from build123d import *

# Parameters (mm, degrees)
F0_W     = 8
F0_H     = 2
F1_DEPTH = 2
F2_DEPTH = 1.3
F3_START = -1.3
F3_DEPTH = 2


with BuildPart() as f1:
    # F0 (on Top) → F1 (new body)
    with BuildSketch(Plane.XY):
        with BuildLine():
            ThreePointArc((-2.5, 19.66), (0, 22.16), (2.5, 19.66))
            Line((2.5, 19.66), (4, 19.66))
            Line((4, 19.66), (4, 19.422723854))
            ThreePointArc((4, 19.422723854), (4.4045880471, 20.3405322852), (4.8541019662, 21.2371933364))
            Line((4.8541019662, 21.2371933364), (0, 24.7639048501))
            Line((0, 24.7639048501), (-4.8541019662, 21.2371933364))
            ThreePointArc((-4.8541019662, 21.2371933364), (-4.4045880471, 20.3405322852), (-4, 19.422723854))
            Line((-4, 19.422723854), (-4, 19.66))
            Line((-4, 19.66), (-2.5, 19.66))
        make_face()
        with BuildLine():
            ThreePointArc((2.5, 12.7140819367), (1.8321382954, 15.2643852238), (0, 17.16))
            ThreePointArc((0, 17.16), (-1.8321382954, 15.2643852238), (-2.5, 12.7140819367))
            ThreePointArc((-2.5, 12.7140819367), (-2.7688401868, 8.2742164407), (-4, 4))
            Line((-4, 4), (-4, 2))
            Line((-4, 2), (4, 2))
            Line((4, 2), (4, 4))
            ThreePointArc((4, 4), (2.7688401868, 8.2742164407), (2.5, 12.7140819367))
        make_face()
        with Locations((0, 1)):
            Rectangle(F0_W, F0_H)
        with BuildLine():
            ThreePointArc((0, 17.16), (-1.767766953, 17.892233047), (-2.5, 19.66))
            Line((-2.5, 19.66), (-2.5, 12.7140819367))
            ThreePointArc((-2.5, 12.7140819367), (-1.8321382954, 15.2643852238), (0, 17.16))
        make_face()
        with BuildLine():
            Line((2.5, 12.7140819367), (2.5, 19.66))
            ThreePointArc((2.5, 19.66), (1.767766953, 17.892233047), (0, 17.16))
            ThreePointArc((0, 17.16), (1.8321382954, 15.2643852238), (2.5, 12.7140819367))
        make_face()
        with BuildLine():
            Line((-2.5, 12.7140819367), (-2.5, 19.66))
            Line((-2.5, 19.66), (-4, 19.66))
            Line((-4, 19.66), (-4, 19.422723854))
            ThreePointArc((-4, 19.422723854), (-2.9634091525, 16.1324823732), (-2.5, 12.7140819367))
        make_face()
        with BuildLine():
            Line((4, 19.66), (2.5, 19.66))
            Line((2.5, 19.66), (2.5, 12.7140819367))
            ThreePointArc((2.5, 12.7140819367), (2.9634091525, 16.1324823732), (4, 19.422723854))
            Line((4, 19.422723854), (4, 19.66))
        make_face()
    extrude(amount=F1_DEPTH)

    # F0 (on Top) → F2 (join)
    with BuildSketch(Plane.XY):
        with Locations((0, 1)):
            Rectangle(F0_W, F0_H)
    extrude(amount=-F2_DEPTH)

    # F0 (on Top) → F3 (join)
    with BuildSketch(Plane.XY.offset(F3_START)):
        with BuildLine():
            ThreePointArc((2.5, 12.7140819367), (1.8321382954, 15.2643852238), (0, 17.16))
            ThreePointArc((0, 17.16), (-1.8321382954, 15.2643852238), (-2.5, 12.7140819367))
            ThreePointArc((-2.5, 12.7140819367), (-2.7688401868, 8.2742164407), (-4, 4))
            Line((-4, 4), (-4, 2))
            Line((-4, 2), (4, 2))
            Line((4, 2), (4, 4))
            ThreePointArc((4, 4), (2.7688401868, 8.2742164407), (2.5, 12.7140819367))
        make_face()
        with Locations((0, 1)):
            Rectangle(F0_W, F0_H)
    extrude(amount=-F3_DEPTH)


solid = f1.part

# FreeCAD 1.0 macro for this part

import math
import FreeCAD as App
import Part
import Sketcher

V = App.Vector
Q = App.Units.Quantity

doc = App.newDocument("Part")
body = doc.addObject("PartDesign::Body", "Body")

# Sketch on XY plane
sketch1 = body.newObject("Sketcher::SketchObject", "Sketch")
sketch1.AttachmentSupport = (doc.getObject("XY_Plane"), [""])
sketch1.MapMode = "FlatFace"
sketch1.addGeometry(Part.ArcOfCircle(Part.Circle(V(22.736552, 11.711362, 0), V(0, 0, 1), 20.261379), math.radians(177.163317), math.radians(202.370489)), False)
sketch1.addGeometry(Part.ArcOfCircle(Part.Circle(V(22.736552, 11.711362, 0), V(0, 0, 1), 20.261379), math.radians(157.629511), math.radians(177.163317)), False)
sketch1.addGeometry(Part.ArcOfCircle(Part.Circle(V(22.736552, 11.711362, 0), V(0, 0, 1), 20.261379), math.radians(151.956145), math.radians(157.629511)), False)
sketch1.addGeometry(Part.LineSegment(V(4.854102, 21.237193, 0), V(0, 24.763905, 0)), False)
sketch1.addGeometry(Part.LineSegment(V(0, 24.763905, 0), V(-4.854102, 21.237193, 0)), False)
sketch1.addGeometry(Part.ArcOfCircle(Part.Circle(V(-22.736552, 11.711362, 0), V(0, 0, 1), 20.261379), math.radians(22.370489), math.radians(28.043855)), False)
sketch1.addGeometry(Part.ArcOfCircle(Part.Circle(V(-22.736552, 11.711362, 0), V(0, 0, 1), 20.261379), math.radians(2.836683), math.radians(22.370489)), False)
sketch1.addGeometry(Part.ArcOfCircle(Part.Circle(V(-22.736552, 11.711362, 0), V(0, 0, 1), 20.261379), math.radians(-22.370489), math.radians(2.836683)), False)
sketch1.addGeometry(Part.LineSegment(V(-4, 4, 0), V(-4, 0, 0)), False)
sketch1.addGeometry(Part.LineSegment(V(-4, 0, 0), V(4, 0, 0)), False)
sketch1.addGeometry(Part.LineSegment(V(4, 0, 0), V(4, 4, 0)), False)
sketch1.addGeometry(Part.ArcOfCircle(Part.Circle(V(0, 19.66, 0), V(0, 0, 1), 2.5), math.radians(0), math.radians(180)), False)
sketch1.addGeometry(Part.ArcOfCircle(Part.Circle(V(0, 19.66, 0), V(0, 0, 1), 2.5), math.radians(-90), math.radians(0)), False)
sketch1.addGeometry(Part.ArcOfCircle(Part.Circle(V(0, 19.66, 0), V(0, 0, 1), 2.5), math.radians(180), math.radians(270)), False)
sketch1.addConstraint(Sketcher.Constraint("Tangent", 0, 1, 1, 2))
sketch1.addConstraint(Sketcher.Constraint("Tangent", 1, 1, 2, 2))
sketch1.addConstraint(Sketcher.Constraint("Coincident", 2, 1, 3, 1))
sketch1.addConstraint(Sketcher.Constraint("Coincident", 3, 2, 4, 1))
sketch1.addConstraint(Sketcher.Constraint("Coincident", 4, 2, 5, 2))
sketch1.addConstraint(Sketcher.Constraint("Tangent", 5, 1, 6, 2))
sketch1.addConstraint(Sketcher.Constraint("Tangent", 6, 1, 7, 2))
sketch1.addConstraint(Sketcher.Constraint("Coincident", 7, 1, 8, 1))
sketch1.addConstraint(Sketcher.Constraint("Coincident", 8, 2, 9, 1))
sketch1.addConstraint(Sketcher.Constraint("Coincident", 9, 2, 10, 1))
sketch1.addConstraint(Sketcher.Constraint("Coincident", 10, 2, 0, 2))
sketch1.addConstraint(Sketcher.Constraint("Tangent", 11, 1, 12, 2))
sketch1.addConstraint(Sketcher.Constraint("Tangent", 12, 1, 13, 2))
sketch1.addConstraint(Sketcher.Constraint("Tangent", 13, 1, 11, 2))
sketch1.addConstraint(Sketcher.Constraint("Vertical", 8))
sketch1.addConstraint(Sketcher.Constraint("Horizontal", 9))
sketch1.addConstraint(Sketcher.Constraint("Vertical", 10))
sketch1.addConstraint(Sketcher.Constraint("Coincident", 2, 3, 0, 3))
sketch1.addConstraint(Sketcher.Constraint("Coincident", 7, 3, 5, 3))
sketch1.addConstraint(Sketcher.Constraint("Equal", 2, 5))
sketch1.addConstraint(Sketcher.Constraint("Symmetric", 8, 2, 9, 2, -1, 1))
sketch1.addConstraint(Sketcher.Constraint("Symmetric", 0, 3, 5, 3, -2))
sketch1.addConstraint(Sketcher.Constraint("Symmetric", 11, 1, 13, 1, -2))
sketch1.addConstraint(Sketcher.Constraint("PointOnObject", 3, 2, -2))
sketch1.addConstraint(Sketcher.Constraint("PointOnObject", 12, 1, -2))
sketch1.addConstraint(Sketcher.Constraint("Horizontal", 2, 1, 4, 2))
sketch1.addConstraint(Sketcher.Constraint("Horizontal", 1, 1, 5, 1))
sketch1.addConstraint(Sketcher.Constraint("Horizontal", 0, 1, 6, 1))
sketch1.addConstraint(Sketcher.Constraint("Horizontal", 13, 3, 11, 1))
sketch1.addConstraint(Sketcher.Constraint("Vertical", 5, 1, 7, 1))
sketch1.addConstraint(Sketcher.Constraint("Vertical", 0, 1, 11, 1))
sketch1.addConstraint(Sketcher.Constraint("Radius", 11, 2.5))
sketch1.addConstraint(Sketcher.Constraint("DistanceX", 9, 1, 9, 2, 8.0))
sketch1.addConstraint(Sketcher.Constraint("DistanceY", 8, 2, 8, 1, 4.0))
sketch1.addConstraint(Sketcher.Constraint("Angle", 3, Q("144 deg")))
sketch1.addConstraint(Sketcher.Constraint("Distance", 3, 6.0))
sketch1.addConstraint(Sketcher.Constraint("DistanceY", -1, 1, 11, 3, 19.66))
sketch1.addConstraint(Sketcher.Constraint("Radius", 0, 20.261379))
sketch1.addConstraint(Sketcher.Constraint("DistanceX", -1, 1, 0, 3, 22.736552))
pad1 = body.newObject("PartDesign::Pad", "Pad")
pad1.Profile = sketch1
pad1.Length = 2

# Sketch on XY plane
sketch2 = body.newObject("Sketcher::SketchObject", "Sketch001")
sketch2.AttachmentSupport = (doc.getObject("XY_Plane"), [""])
sketch2.MapMode = "FlatFace"
sketch2.addGeometry(Part.LineSegment(V(-4, 2, 0), V(-4, 0, 0)), False)
sketch2.addGeometry(Part.LineSegment(V(-4, 0, 0), V(4, 0, 0)), False)
sketch2.addGeometry(Part.LineSegment(V(4, 0, 0), V(4, 2, 0)), False)
sketch2.addGeometry(Part.LineSegment(V(4, 2, 0), V(-4, 2, 0)), False)
sketch2.addConstraint(Sketcher.Constraint("Coincident", 0, 2, 1, 1))
sketch2.addConstraint(Sketcher.Constraint("Coincident", 1, 2, 2, 1))
sketch2.addConstraint(Sketcher.Constraint("Coincident", 2, 2, 3, 1))
sketch2.addConstraint(Sketcher.Constraint("Coincident", 3, 2, 0, 1))
sketch2.addConstraint(Sketcher.Constraint("Vertical", 0))
sketch2.addConstraint(Sketcher.Constraint("Horizontal", 1))
sketch2.addConstraint(Sketcher.Constraint("Vertical", 2))
sketch2.addConstraint(Sketcher.Constraint("Horizontal", 3))
sketch2.addConstraint(Sketcher.Constraint("Symmetric", 0, 2, 1, 2, -1, 1))
sketch2.addConstraint(Sketcher.Constraint("DistanceX", 1, 1, 1, 2, 8.0))
sketch2.addConstraint(Sketcher.Constraint("DistanceY", 0, 2, 0, 1, 2.0))
pad2 = body.newObject("PartDesign::Pad", "Pad001")
pad2.Profile = sketch2
pad2.Length = 1.3
pad2.Reversed = True

# Sketch on XY plane
sketch3 = body.newObject("Sketcher::SketchObject", "Sketch002")
sketch3.AttachmentSupport = (doc.getObject("XY_Plane"), [""])
sketch3.MapMode = "FlatFace"
sketch3.AttachmentOffset = App.Placement(V(0, 0, -1.3), App.Rotation())
sketch3.addGeometry(Part.ArcOfCircle(Part.Circle(V(-2.703237, 12.714082, 0), V(0, 0, 1), 5.203237), math.radians(0), math.radians(58.699276)), False)
sketch3.addGeometry(Part.ArcOfCircle(Part.Circle(V(2.703237, 12.714082, 0), V(0, 0, 1), 5.203237), math.radians(121.300724), math.radians(180)), False)
sketch3.addGeometry(Part.ArcOfCircle(Part.Circle(V(-22.736552, 11.711362, 0), V(0, 0, 1), 20.261379), math.radians(-22.370489), math.radians(2.836683)), False)
sketch3.addGeometry(Part.LineSegment(V(-4, 4, 0), V(-4, 0, 0)), False)
sketch3.addGeometry(Part.LineSegment(V(-4, 0, 0), V(4, 0, 0)), False)
sketch3.addGeometry(Part.LineSegment(V(4, 0, 0), V(4, 4, 0)), False)
sketch3.addGeometry(Part.ArcOfCircle(Part.Circle(V(22.736552, 11.711362, 0), V(0, 0, 1), 20.261379), math.radians(177.163317), math.radians(202.370489)), False)
sketch3.addConstraint(Sketcher.Constraint("Coincident", 0, 2, 1, 1))
sketch3.addConstraint(Sketcher.Constraint("Coincident", 1, 2, 2, 2))
sketch3.addConstraint(Sketcher.Constraint("Coincident", 2, 1, 3, 1))
sketch3.addConstraint(Sketcher.Constraint("Coincident", 3, 2, 4, 1))
sketch3.addConstraint(Sketcher.Constraint("Coincident", 4, 2, 5, 1))
sketch3.addConstraint(Sketcher.Constraint("Coincident", 5, 2, 6, 2))
sketch3.addConstraint(Sketcher.Constraint("Coincident", 6, 1, 0, 1))
sketch3.addConstraint(Sketcher.Constraint("Vertical", 3))
sketch3.addConstraint(Sketcher.Constraint("Horizontal", 4))
sketch3.addConstraint(Sketcher.Constraint("Vertical", 5))
sketch3.addConstraint(Sketcher.Constraint("Equal", 0, 1))
sketch3.addConstraint(Sketcher.Constraint("Equal", 2, 6))
sketch3.addConstraint(Sketcher.Constraint("Symmetric", 3, 2, 4, 2, -1, 1))
sketch3.addConstraint(Sketcher.Constraint("Symmetric", 0, 3, 1, 3, -2))
sketch3.addConstraint(Sketcher.Constraint("Symmetric", 2, 3, 6, 3, -2))
sketch3.addConstraint(Sketcher.Constraint("Horizontal", 0, 3, 1, 2))
sketch3.addConstraint(Sketcher.Constraint("DistanceX", 4, 1, 4, 2, 8.0))
sketch3.addConstraint(Sketcher.Constraint("DistanceY", 3, 2, 3, 1, 4.0))
sketch3.addConstraint(Sketcher.Constraint("DistanceX", 1, 2, 6, 1, 5.0))
sketch3.addConstraint(Sketcher.Constraint("DistanceY", -1, 1, 0, 2, 17.16))
sketch3.addConstraint(Sketcher.Constraint("Radius", 2, 20.261379))
sketch3.addConstraint(Sketcher.Constraint("Radius", 0, 5.203237))
pad3 = body.newObject("PartDesign::Pad", "Pad002")
pad3.Profile = sketch3
pad3.Length = 2
pad3.Reversed = True

doc.recompute()
